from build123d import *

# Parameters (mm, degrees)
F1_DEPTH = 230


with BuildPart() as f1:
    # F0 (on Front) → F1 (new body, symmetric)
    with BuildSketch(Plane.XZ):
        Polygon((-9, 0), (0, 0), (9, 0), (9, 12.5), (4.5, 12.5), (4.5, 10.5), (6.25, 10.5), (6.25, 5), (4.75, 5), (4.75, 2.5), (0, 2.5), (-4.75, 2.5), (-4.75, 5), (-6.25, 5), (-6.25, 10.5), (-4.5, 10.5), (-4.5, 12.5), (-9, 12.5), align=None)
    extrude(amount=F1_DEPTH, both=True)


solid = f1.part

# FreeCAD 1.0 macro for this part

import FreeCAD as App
import Part
import Sketcher
from FreeCAD import Vector


def add_polygon(sketch, points):
    """Adds a closed chain of lines whose ends are joined by coincident constraints."""
    first, n = sketch.GeometryCount, len(points)
    for a, b in zip(points, points[1:] + points[:1]):
        sketch.addGeometry(Part.LineSegment(App.Vector(*a, 0), App.Vector(*b, 0)), False)
    for i in range(n):
        sketch.addConstraint(Sketcher.Constraint("Coincident", first + i, 2, first + (i + 1) % n, 1))

doc = App.newDocument("Part")
params = doc.addObject("Spreadsheet::Sheet", "Params")
for row, (alias, value) in enumerate([
    ("sketch1_width", "18 mm"),
    ("sketch1_height", "2 mm"),
    ("sketch1_width2", "4.5 mm"),
    ("sketch1_width3", "1.5 mm"),
    ("sketch1_width4", "9.5 mm"),
    ("pad1_length", "460 mm"),
], start=1):
    params.set(f"A{row}", alias)
    params.set(f"B{row}", "=" + value)
    params.setAlias(f"B{row}", alias)

body = doc.addObject("PartDesign::Body", "Body")

sketch1 = body.newObject("Sketcher::SketchObject", "Sketch")
sketch1.AttachmentSupport = (doc.getObject("XZ_Plane"), [""])
sketch1.MapMode = "FlatFace"
add_polygon(sketch1, [(-9, 0), (9, 0), (9, 12.5), (4.5, 12.5), (4.5, 10.5), (6.25, 10.5), (6.25, 5), (4.75, 5), (4.75, 2.5), (-4.75, 2.5), (-4.75, 5), (-6.25, 5), (-6.25, 10.5), (-4.5, 10.5), (-4.5, 12.5), (-9, 12.5)])
sketch1.addConstraint([
    Sketcher.Constraint("Horizontal", 0),
    Sketcher.Constraint("Vertical", 1),
    Sketcher.Constraint("Horizontal", 2),
    Sketcher.Constraint("Vertical", 3),
    Sketcher.Constraint("Horizontal", 4),
    Sketcher.Constraint("Vertical", 5),
    Sketcher.Constraint("Horizontal", 6),
    Sketcher.Constraint("Vertical", 7),
    Sketcher.Constraint("Horizontal", 8),
    Sketcher.Constraint("Vertical", 9),
    Sketcher.Constraint("Horizontal", 10),
    Sketcher.Constraint("Vertical", 11),
    Sketcher.Constraint("Horizontal", 12),
    Sketcher.Constraint("Vertical", 13),
    Sketcher.Constraint("Horizontal", 14),
    Sketcher.Constraint("Vertical", 15),
    Sketcher.Constraint("Symmetric", 0, 2, 15, 2, -1, 1),
    Sketcher.Constraint("Symmetric", 6, 2, 9, 2, -2),
    Sketcher.Constraint("Symmetric", 4, 2, 11, 2, -2),
    Sketcher.Constraint("Symmetric", 2, 2, 13, 2, -2),
    Sketcher.Constraint("DistanceX", 0, 1, 0, 2, 18.0),
    Sketcher.Constraint("DistanceY", 3, 2, 3, 1, 2.0),
    Sketcher.Constraint("DistanceX", 2, 2, 2, 1, 4.5),
    Sketcher.Constraint("DistanceX", 6, 2, 6, 1, 1.5),
    Sketcher.Constraint("DistanceX", 8, 2, 8, 1, 9.5),
    Sketcher.Constraint("DistanceY", 1, 1, 1, 2, 12.5),
    Sketcher.Constraint("DistanceY", 5, 2, 5, 1, 5.5),
    Sketcher.Constraint("DistanceY", 7, 2, 7, 1, 2.5),
])
sketch1.setExpression("Constraints[36]", "Params.sketch1_width")
sketch1.setExpression("Constraints[37]", "Params.sketch1_height")
sketch1.setExpression("Constraints[38]", "Params.sketch1_width2")
sketch1.setExpression("Constraints[39]", "Params.sketch1_width3")
sketch1.setExpression("Constraints[40]", "Params.sketch1_width4")
pad1 = body.newObject("PartDesign::Pad", "Pad")
pad1.Profile = sketch1
pad1.setExpression("Length", "Params.pad1_length")
pad1.Midplane = True

doc.recompute()
